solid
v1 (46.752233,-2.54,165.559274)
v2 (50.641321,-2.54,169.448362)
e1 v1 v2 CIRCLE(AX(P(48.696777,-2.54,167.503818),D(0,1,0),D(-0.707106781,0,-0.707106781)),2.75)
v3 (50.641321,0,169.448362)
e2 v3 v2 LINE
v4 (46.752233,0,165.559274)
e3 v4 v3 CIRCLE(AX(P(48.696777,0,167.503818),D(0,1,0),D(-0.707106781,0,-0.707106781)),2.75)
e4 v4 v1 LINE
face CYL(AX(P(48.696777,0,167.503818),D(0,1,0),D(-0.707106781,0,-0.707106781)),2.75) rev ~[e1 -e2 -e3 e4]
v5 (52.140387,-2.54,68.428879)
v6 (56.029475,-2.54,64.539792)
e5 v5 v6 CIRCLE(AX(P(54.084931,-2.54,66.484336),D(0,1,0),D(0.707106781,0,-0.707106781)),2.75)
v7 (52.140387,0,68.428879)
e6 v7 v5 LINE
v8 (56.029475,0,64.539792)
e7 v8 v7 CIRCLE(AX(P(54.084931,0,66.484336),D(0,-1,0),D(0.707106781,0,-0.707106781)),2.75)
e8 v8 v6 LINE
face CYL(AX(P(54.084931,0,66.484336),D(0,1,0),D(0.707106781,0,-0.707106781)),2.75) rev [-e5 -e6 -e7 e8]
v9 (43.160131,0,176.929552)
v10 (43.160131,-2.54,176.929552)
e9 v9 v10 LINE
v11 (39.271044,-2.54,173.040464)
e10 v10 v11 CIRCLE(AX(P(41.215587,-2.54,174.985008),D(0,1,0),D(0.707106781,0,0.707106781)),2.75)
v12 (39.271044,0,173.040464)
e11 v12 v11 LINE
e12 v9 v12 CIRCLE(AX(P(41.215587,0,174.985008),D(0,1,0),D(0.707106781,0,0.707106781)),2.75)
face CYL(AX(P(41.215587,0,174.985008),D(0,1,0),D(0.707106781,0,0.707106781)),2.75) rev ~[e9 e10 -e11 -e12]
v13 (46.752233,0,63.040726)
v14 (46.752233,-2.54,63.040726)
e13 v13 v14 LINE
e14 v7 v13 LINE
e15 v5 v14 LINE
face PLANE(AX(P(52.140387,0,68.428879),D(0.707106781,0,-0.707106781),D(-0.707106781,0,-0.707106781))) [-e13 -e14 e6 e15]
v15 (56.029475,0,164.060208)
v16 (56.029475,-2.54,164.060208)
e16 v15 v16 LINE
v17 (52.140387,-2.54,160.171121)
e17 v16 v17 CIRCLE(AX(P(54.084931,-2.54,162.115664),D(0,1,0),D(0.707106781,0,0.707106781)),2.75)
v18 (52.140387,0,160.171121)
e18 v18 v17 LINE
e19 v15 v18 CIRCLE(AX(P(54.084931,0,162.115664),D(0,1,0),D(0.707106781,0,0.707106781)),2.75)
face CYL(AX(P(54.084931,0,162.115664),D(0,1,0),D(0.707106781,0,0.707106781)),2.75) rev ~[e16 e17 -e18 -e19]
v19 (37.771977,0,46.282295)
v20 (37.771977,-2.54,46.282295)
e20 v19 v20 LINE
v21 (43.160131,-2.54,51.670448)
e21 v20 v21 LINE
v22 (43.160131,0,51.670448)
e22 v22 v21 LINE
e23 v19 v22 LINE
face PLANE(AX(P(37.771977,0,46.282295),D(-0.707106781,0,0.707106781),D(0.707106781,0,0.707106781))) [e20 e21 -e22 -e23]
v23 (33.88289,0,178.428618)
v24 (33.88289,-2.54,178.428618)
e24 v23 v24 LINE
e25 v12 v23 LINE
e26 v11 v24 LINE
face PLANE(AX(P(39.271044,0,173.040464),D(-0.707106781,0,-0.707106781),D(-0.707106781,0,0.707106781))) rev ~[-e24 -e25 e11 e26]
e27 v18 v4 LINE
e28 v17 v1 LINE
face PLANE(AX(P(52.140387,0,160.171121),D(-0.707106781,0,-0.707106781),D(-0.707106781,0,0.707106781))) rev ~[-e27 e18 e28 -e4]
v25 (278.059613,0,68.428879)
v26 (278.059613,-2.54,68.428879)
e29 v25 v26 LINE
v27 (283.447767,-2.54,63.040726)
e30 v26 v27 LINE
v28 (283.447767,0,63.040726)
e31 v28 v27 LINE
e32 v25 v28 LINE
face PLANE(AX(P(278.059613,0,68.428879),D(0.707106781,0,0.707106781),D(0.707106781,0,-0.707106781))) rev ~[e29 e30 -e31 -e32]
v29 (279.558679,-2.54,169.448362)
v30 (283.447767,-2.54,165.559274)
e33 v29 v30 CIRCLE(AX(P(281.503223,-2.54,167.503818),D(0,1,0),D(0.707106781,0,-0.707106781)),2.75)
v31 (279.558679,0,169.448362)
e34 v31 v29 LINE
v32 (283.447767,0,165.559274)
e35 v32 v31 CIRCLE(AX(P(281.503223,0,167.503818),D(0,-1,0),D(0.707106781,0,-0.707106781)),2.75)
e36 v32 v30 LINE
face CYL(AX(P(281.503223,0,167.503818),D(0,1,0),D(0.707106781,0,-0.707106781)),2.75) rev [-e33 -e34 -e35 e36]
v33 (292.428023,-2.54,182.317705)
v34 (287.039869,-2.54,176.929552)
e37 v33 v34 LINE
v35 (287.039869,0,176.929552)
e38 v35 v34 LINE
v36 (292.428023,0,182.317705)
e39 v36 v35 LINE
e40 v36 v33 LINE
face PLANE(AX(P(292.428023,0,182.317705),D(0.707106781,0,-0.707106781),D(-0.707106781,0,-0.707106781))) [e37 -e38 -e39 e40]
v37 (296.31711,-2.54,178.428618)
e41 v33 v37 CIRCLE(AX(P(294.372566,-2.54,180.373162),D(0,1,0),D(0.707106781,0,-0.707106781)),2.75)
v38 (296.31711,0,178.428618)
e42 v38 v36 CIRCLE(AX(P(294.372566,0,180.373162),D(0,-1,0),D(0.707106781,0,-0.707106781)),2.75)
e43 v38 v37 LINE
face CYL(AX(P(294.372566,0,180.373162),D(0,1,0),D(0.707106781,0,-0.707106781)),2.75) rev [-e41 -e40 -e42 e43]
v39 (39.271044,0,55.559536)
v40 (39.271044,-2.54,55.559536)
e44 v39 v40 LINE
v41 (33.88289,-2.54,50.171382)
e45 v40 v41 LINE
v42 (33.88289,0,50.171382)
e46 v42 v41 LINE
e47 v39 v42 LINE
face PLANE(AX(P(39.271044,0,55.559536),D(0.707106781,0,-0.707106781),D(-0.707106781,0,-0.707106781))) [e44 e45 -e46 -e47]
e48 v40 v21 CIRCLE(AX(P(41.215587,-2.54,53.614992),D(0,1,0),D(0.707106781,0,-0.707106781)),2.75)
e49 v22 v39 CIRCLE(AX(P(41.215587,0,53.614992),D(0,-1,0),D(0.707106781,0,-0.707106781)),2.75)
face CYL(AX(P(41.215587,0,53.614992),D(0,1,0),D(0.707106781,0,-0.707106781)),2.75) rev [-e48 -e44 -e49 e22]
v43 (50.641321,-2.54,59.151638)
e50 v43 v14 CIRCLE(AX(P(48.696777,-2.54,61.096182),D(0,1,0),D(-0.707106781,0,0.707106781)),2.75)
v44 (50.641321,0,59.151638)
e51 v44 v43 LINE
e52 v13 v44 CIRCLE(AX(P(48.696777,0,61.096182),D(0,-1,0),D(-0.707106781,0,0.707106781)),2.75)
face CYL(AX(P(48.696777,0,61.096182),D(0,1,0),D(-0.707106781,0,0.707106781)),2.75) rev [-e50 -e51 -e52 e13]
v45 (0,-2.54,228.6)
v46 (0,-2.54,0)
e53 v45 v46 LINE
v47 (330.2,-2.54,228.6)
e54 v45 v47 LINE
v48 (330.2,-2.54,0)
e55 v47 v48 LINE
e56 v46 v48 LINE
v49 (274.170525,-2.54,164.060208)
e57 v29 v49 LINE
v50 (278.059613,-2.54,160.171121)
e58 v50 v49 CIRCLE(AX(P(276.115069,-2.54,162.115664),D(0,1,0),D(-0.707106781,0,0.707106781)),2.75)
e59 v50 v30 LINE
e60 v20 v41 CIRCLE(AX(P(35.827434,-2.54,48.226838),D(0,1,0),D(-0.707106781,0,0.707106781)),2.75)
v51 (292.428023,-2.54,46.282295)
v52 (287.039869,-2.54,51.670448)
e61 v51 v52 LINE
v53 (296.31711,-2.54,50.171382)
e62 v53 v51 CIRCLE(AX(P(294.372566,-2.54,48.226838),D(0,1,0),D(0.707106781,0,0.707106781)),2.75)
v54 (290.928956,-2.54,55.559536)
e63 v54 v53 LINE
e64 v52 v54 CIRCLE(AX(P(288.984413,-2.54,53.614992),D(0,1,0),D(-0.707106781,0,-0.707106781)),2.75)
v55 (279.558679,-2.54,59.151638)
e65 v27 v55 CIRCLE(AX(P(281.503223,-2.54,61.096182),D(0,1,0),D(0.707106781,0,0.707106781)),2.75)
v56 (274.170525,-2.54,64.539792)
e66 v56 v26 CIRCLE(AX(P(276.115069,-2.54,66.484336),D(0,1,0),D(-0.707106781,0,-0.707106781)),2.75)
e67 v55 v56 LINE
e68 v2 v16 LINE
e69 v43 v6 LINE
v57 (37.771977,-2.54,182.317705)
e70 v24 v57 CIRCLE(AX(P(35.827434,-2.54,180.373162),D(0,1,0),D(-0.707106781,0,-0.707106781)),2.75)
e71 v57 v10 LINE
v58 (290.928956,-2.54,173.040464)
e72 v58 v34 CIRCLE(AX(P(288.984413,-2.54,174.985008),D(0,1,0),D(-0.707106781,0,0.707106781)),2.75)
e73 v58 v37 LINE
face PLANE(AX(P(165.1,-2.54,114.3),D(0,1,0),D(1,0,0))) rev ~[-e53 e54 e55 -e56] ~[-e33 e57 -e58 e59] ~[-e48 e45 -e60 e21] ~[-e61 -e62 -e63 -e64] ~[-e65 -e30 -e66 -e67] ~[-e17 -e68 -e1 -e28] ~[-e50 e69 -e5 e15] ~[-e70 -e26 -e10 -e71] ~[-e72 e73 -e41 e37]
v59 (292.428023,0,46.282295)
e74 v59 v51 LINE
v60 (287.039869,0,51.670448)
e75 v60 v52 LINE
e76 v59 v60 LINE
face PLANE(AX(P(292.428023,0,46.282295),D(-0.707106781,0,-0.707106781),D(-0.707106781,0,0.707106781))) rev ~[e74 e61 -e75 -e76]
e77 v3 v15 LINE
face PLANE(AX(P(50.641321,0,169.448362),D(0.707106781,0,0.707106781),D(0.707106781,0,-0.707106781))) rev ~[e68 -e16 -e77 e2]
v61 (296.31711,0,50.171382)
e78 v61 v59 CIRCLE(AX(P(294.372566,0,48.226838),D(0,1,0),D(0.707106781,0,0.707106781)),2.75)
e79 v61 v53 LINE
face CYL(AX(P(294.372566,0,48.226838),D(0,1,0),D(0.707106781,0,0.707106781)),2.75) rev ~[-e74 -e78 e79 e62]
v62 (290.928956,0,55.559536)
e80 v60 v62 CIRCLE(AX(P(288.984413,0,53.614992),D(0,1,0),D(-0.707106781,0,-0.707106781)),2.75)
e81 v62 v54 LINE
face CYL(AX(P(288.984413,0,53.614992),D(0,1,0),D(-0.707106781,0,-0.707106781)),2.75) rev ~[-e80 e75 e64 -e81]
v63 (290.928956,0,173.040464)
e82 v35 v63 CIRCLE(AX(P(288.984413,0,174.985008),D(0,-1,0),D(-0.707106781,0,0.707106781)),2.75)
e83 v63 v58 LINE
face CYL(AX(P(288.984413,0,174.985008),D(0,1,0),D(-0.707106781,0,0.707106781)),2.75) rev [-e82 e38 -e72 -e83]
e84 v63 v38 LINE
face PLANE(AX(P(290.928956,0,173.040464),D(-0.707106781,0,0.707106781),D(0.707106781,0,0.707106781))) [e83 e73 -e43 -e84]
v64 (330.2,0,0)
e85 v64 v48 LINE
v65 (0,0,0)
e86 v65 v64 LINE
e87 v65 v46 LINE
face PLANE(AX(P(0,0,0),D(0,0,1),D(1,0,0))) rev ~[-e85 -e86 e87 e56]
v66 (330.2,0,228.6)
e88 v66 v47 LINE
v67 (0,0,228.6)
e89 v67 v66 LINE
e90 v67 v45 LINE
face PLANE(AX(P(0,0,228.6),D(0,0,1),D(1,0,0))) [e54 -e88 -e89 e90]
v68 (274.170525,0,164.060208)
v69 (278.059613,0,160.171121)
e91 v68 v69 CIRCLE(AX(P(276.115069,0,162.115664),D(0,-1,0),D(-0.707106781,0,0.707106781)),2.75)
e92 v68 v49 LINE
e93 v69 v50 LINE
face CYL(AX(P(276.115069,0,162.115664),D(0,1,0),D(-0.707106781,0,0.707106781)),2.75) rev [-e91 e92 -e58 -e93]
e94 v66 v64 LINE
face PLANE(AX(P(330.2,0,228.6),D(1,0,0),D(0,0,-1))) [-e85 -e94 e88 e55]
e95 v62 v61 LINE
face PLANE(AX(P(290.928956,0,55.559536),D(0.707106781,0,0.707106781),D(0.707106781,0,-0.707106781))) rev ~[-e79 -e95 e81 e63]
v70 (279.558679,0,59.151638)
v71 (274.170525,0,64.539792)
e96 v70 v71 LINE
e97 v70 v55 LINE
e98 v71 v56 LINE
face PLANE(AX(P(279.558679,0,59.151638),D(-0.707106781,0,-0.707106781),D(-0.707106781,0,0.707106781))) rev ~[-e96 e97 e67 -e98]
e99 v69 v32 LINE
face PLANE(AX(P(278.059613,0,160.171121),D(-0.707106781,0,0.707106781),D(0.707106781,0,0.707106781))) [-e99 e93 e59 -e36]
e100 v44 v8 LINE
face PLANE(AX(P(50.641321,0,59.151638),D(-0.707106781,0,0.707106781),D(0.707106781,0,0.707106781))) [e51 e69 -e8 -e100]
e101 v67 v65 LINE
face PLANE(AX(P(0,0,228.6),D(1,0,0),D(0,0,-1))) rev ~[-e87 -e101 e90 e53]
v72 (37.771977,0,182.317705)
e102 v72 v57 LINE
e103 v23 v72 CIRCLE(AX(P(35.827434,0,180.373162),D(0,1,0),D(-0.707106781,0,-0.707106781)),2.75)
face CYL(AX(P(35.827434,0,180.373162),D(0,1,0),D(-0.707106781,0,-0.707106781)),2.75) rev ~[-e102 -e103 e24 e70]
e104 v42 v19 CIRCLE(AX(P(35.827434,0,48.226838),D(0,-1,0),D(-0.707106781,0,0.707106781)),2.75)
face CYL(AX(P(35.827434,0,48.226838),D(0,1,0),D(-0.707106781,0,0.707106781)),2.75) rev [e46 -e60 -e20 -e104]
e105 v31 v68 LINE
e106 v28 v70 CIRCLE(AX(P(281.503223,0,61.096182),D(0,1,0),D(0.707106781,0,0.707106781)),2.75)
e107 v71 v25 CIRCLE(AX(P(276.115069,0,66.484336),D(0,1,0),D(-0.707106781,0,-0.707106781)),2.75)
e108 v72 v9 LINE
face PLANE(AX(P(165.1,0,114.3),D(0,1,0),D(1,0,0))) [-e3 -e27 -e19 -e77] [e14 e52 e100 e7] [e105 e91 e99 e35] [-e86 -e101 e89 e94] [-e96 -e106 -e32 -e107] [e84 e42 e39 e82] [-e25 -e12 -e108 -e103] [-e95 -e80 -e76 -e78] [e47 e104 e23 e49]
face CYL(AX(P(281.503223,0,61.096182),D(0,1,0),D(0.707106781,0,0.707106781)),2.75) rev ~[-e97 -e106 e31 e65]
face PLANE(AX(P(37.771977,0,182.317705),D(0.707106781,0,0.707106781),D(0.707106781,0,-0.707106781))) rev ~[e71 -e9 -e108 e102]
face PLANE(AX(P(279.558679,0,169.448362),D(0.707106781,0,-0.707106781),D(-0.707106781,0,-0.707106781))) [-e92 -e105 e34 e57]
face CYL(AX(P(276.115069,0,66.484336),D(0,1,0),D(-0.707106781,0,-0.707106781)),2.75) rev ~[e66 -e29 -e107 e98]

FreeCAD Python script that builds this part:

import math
import FreeCAD as App
import Part
import Sketcher
Q = App.Units.Quantity

doc = App.newDocument("Part")
params = doc.addObject("Spreadsheet::Sheet", "Params")
for row, (alias, value) in enumerate([
    ("sketch1_width", "13 in"),
    ("sketch1_height", "9 in"),
    ("pad1_length", "0.1 in"),
    ("sketch2_length", "0.3 in"),
], start=1):
    params.set(f"A{row}", alias)
    params.set(f"B{row}", "=" + value)
    params.setAlias(f"B{row}", alias)

body = doc.addObject("PartDesign::Body", "Body")

sketch1 = body.newObject("Sketcher::SketchObject", "Sketch")
sketch1.AttachmentSupport = (doc.getObject("XZ_Plane"), [""])
sketch1.MapMode = "FlatFace"
sketch1.addGeometry([
    Part.LineSegment(App.Vector(0, 0, 0), App.Vector(0, 229, 0)),
    Part.LineSegment(App.Vector(0, 229, 0), App.Vector(330, 229, 0)),
    Part.LineSegment(App.Vector(330, 229, 0), App.Vector(330, 0, 0)),
    Part.LineSegment(App.Vector(330, 0, 0), App.Vector(0, 0, 0)),
], False)
sketch1.addConstraint([
    Sketcher.Constraint("Coincident", 0, 2, 1, 1),
    Sketcher.Constraint("Coincident", 1, 2, 2, 1),
    Sketcher.Constraint("Coincident", 2, 2, 3, 1),
    Sketcher.Constraint("Coincident", 3, 2, 0, 1),
    Sketcher.Constraint("Vertical", 0),
    Sketcher.Constraint("Horizontal", 1),
    Sketcher.Constraint("Vertical", 2),
    Sketcher.Constraint("Horizontal", 3),
    Sketcher.Constraint("Coincident", 3, 2, -1, 1),
    Sketcher.Constraint("DistanceX", 1, 1, 1, 2, Q("13 in")),
    Sketcher.Constraint("DistanceY", 0, 1, 0, 2, Q("9 in")),
])
sketch1.setExpression("Constraints[9]", "Params.sketch1_width")
sketch1.setExpression("Constraints[10]", "Params.sketch1_height")
pad1 = body.newObject("PartDesign::Pad", "Pad")
pad1.Profile = sketch1
pad1.setExpression("Length", "Params.pad1_length")

sketch2 = body.newObject("Sketcher::SketchObject", "Sketch001")
sketch2.AttachmentSupport = (doc.getObject("XZ_Plane"), [""])
sketch2.MapMode = "FlatFace"
sketch2.addGeometry([
    Part.ArcOfCircle(Part.Circle(App.Vector(41.2, 53.6, 0), App.Vector(0, 0, 1), 2.8), math.radians(-45), math.radians(135)),
    Part.LineSegment(App.Vector(43.2, 51.7, 0), App.Vector(37.8, 46.3, 0)),
    Part.ArcOfCircle(Part.Circle(App.Vector(35.8, 48.2, 0), App.Vector(0, 0, 1), 2.8), math.radians(135), math.radians(315)),
    Part.LineSegment(App.Vector(33.9, 50.2, 0), App.Vector(39.3, 55.6, 0)),
    Part.LineSegment(App.Vector(292.4, 46.3, 0), App.Vector(287, 51.7, 0)),
    Part.ArcOfCircle(Part.Circle(App.Vector(289, 53.6, 0), App.Vector(0, 0, 1), 2.8), math.radians(45), math.radians(225)),
    Part.LineSegment(App.Vector(290.9, 55.6, 0), App.Vector(296.3, 50.2, 0)),
    Part.ArcOfCircle(Part.Circle(App.Vector(294.4, 48.2, 0), App.Vector(0, 0, 1), 2.8), math.radians(-135), math.radians(45)),
    Part.LineSegment(App.Vector(278.1, 68.4, 0), App.Vector(283.4, 63, 0)),
    Part.ArcOfCircle(Part.Circle(App.Vector(281.5, 61.1, 0), App.Vector(0, 0, 1), 2.8), math.radians(-135), math.radians(45)),
    Part.LineSegment(App.Vector(279.6, 59.2, 0), App.Vector(274.2, 64.5, 0)),
    Part.ArcOfCircle(Part.Circle(App.Vector(276.1, 66.5, 0), App.Vector(0, 0, 1), 2.8), math.radians(45), math.radians(225)),
    Part.ArcOfCircle(Part.Circle(App.Vector(281.5, 167.5, 0), App.Vector(0, 0, 1), 2.8), math.radians(-45), math.radians(135)),
    Part.LineSegment(App.Vector(283.4, 165.6, 0), App.Vector(278.1, 160.2, 0)),
    Part.ArcOfCircle(Part.Circle(App.Vector(276.1, 162.1, 0), App.Vector(0, 0, 1), 2.8), math.radians(135), math.radians(315)),
    Part.LineSegment(App.Vector(274.2, 164.1, 0), App.Vector(279.6, 169.4, 0)),
    Part.ArcOfCircle(Part.Circle(App.Vector(289, 175, 0), App.Vector(0, 0, 1), 2.8), math.radians(135), math.radians(315)),
    Part.LineSegment(App.Vector(287, 176.9, 0), App.Vector(292.4, 182.3, 0)),
    Part.ArcOfCircle(Part.Circle(App.Vector(294.4, 180.4, 0), App.Vector(0, 0, 1), 2.8), math.radians(-45), math.radians(135)),
    Part.LineSegment(App.Vector(296.3, 178.4, 0), App.Vector(290.9, 173, 0)),
    Part.LineSegment(App.Vector(37.8, 182.3, 0), App.Vector(43.2, 176.9, 0)),
    Part.ArcOfCircle(Part.Circle(App.Vector(41.2, 175, 0), App.Vector(0, 0, 1), 2.8), math.radians(-135), math.radians(45)),
    Part.LineSegment(App.Vector(39.3, 173, 0), App.Vector(33.9, 178.4, 0)),
    Part.ArcOfCircle(Part.Circle(App.Vector(35.8, 180.4, 0), App.Vector(0, 0, 1), 2.8), math.radians(45), math.radians(225)),
    Part.LineSegment(App.Vector(52.1, 160.2, 0), App.Vector(46.8, 165.6, 0)),
    Part.ArcOfCircle(Part.Circle(App.Vector(48.7, 167.5, 0), App.Vector(0, 0, 1), 2.8), math.radians(45), math.radians(225)),
    Part.LineSegment(App.Vector(50.6, 169.4, 0), App.Vector(56, 164.1, 0)),
    Part.ArcOfCircle(Part.Circle(App.Vector(54.1, 162.1, 0), App.Vector(0, 0, 1), 2.8), math.radians(-135), math.radians(45)),
    Part.LineSegment(App.Vector(46.8, 63, 0), App.Vector(52.1, 68.4, 0)),
    Part.ArcOfCircle(Part.Circle(App.Vector(54.1, 66.5, 0), App.Vector(0, 0, 1), 2.8), math.radians(-45), math.radians(135)),
    Part.LineSegment(App.Vector(56, 64.5, 0), App.Vector(50.6, 59.2, 0)),
    Part.ArcOfCircle(Part.Circle(App.Vector(48.7, 61.1, 0), App.Vector(0, 0, 1), 2.8), math.radians(135), math.radians(315)),
], False)
sketch2.addConstraint([
    Sketcher.Constraint("Tangent", 0, 1, 1, 1),
    Sketcher.Constraint("Tangent", 1, 2, 2, 2),
    Sketcher.Constraint("Tangent", 2, 1, 3, 1),
    Sketcher.Constraint("Tangent", 3, 2, 0, 2),
    Sketcher.Constraint("Tangent", 4, 2, 5, 2),
    Sketcher.Constraint("Tangent", 5, 1, 6, 1),
    Sketcher.Constraint("Tangent", 6, 2, 7, 2),
    Sketcher.Constraint("Tangent", 7, 1, 4, 1),
    Sketcher.Constraint("Tangent", 8, 2, 9, 2),
    Sketcher.Constraint("Tangent", 9, 1, 10, 1),
    Sketcher.Constraint("Tangent", 10, 2, 11, 2),
    Sketcher.Constraint("Tangent", 11, 1, 8, 1),
    Sketcher.Constraint("Tangent", 12, 1, 13, 1),
    Sketcher.Constraint("Tangent", 13, 2, 14, 2),
    Sketcher.Constraint("Tangent", 14, 1, 15, 1),
    Sketcher.Constraint("Tangent", 15, 2, 12, 2),
    Sketcher.Constraint("Tangent", 16, 1, 17, 1),
    Sketcher.Constraint("Tangent", 17, 2, 18, 2),
    Sketcher.Constraint("Tangent", 18, 1, 19, 1),
    Sketcher.Constraint("Tangent", 19, 2, 16, 2),
    Sketcher.Constraint("Tangent", 20, 2, 21, 2),
    Sketcher.Constraint("Tangent", 21, 1, 22, 1),
    Sketcher.Constraint("Tangent", 22, 2, 23, 2),
    Sketcher.Constraint("Tangent", 23, 1, 20, 1),
    Sketcher.Constraint("Tangent", 24, 2, 25, 2),
    Sketcher.Constraint("Tangent", 25, 1, 26, 1),
    Sketcher.Constraint("Tangent", 26, 2, 27, 2),
    Sketcher.Constraint("Tangent", 27, 1, 24, 1),
    Sketcher.Constraint("Tangent", 28, 2, 29, 2),
    Sketcher.Constraint("Tangent", 29, 1, 30, 1),
    Sketcher.Constraint("Tangent", 30, 2, 31, 2),
    Sketcher.Constraint("Tangent", 31, 1, 28, 1),
    Sketcher.Constraint("Equal", 0, 2),
    Sketcher.Constraint("Equal", 2, 5),
    Sketcher.Constraint("Equal", 5, 7),
    Sketcher.Constraint("Equal", 7, 9),
    Sketcher.Constraint("Equal", 9, 11),
    Sketcher.Constraint("Equal", 11, 12),
    Sketcher.Constraint("Equal", 12, 14),
    Sketcher.Constraint("Equal", 14, 16),
    Sketcher.Constraint("Equal", 16, 18),
    Sketcher.Constraint("Equal", 18, 21),
    Sketcher.Constraint("Equal", 21, 23),
    Sketcher.Constraint("Equal", 23, 25),
    Sketcher.Constraint("Equal", 25, 27),
    Sketcher.Constraint("Equal", 27, 29),
    Sketcher.Constraint("Equal", 29, 31),
    Sketcher.Constraint("Perpendicular", 3, 4),
    Sketcher.Constraint("Parallel", 6, 8),
    Sketcher.Constraint("Perpendicular", 10, 13),
    Sketcher.Constraint("Parallel", 15, 17),
    Sketcher.Constraint("Perpendicular", 19, 20),
    Sketcher.Constraint("Parallel", 22, 24),
    Sketcher.Constraint("Perpendicular", 26, 28),
    Sketcher.Constraint("Horizontal", 0, 3, 5, 3),
    Sketcher.Constraint("Horizontal", 2, 3, 7, 3),
    Sketcher.Constraint("Horizontal", 16, 3, 21, 3),
    Sketcher.Constraint("Horizontal", 18, 3, 23, 3),
    Sketcher.Constraint("Horizontal", 12, 3, 25, 3),
    Sketcher.Constraint("Horizontal", 14, 3, 27, 3),
    Sketcher.Constraint("Horizontal", 11, 3, 29, 3),
    Sketcher.Constraint("Horizontal", 9, 3, 31, 3),
    Sketcher.Constraint("Horizontal", 0, 1, 4, 2),
    Sketcher.Constraint("Vertical", 9, 3, 12, 3),
    Sketcher.Constraint("Vertical", 11, 3, 14, 3),
    Sketcher.Constraint("Vertical", 5, 3, 16, 3),
    Sketcher.Constraint("Vertical", 7, 3, 18, 3),
    Sketcher.Constraint("Vertical", 0, 3, 21, 3),
    Sketcher.Constraint("Vertical", 27, 3, 29, 3),
    Sketcher.Constraint("Equal", 6, 8),
    Sketcher.Constraint("Distance", 1, Q("0.3 in")),
    Sketcher.Constraint("Radius", 0, 2.75),
    Sketcher.Constraint("DistanceX", 0, 1, 29, 3, 10.9248),
    Sketcher.Constraint("DistanceY", 2, 1, 31, 3, 10.9248),
    Sketcher.Constraint("DistanceX", 11, 3, 4, 2, 10.9248),
    Sketcher.Constraint("DistanceY", 14, 1, 16, 3, 10.9248),
    Sketcher.Constraint("DistanceY", -1, 1, 2, 3, 48.226838),
    Sketcher.Constraint("DistanceX", -1, 1, 11, 3, 276.115069),
    Sketcher.Constraint("DistanceY", -1, 1, 12, 3, 167.503818),
    Sketcher.Constraint("DistanceX", -1, 1, 27, 3, 54.084931),
])
sketch2.setExpression("Constraints[70]", "Params.sketch2_length")
pocket1 = body.newObject("PartDesign::Pocket", "Pocket")
pocket1.Profile = sketch2
pocket1.Type = "ThroughAll"
pocket1.Reversed = True

doc.recompute()
